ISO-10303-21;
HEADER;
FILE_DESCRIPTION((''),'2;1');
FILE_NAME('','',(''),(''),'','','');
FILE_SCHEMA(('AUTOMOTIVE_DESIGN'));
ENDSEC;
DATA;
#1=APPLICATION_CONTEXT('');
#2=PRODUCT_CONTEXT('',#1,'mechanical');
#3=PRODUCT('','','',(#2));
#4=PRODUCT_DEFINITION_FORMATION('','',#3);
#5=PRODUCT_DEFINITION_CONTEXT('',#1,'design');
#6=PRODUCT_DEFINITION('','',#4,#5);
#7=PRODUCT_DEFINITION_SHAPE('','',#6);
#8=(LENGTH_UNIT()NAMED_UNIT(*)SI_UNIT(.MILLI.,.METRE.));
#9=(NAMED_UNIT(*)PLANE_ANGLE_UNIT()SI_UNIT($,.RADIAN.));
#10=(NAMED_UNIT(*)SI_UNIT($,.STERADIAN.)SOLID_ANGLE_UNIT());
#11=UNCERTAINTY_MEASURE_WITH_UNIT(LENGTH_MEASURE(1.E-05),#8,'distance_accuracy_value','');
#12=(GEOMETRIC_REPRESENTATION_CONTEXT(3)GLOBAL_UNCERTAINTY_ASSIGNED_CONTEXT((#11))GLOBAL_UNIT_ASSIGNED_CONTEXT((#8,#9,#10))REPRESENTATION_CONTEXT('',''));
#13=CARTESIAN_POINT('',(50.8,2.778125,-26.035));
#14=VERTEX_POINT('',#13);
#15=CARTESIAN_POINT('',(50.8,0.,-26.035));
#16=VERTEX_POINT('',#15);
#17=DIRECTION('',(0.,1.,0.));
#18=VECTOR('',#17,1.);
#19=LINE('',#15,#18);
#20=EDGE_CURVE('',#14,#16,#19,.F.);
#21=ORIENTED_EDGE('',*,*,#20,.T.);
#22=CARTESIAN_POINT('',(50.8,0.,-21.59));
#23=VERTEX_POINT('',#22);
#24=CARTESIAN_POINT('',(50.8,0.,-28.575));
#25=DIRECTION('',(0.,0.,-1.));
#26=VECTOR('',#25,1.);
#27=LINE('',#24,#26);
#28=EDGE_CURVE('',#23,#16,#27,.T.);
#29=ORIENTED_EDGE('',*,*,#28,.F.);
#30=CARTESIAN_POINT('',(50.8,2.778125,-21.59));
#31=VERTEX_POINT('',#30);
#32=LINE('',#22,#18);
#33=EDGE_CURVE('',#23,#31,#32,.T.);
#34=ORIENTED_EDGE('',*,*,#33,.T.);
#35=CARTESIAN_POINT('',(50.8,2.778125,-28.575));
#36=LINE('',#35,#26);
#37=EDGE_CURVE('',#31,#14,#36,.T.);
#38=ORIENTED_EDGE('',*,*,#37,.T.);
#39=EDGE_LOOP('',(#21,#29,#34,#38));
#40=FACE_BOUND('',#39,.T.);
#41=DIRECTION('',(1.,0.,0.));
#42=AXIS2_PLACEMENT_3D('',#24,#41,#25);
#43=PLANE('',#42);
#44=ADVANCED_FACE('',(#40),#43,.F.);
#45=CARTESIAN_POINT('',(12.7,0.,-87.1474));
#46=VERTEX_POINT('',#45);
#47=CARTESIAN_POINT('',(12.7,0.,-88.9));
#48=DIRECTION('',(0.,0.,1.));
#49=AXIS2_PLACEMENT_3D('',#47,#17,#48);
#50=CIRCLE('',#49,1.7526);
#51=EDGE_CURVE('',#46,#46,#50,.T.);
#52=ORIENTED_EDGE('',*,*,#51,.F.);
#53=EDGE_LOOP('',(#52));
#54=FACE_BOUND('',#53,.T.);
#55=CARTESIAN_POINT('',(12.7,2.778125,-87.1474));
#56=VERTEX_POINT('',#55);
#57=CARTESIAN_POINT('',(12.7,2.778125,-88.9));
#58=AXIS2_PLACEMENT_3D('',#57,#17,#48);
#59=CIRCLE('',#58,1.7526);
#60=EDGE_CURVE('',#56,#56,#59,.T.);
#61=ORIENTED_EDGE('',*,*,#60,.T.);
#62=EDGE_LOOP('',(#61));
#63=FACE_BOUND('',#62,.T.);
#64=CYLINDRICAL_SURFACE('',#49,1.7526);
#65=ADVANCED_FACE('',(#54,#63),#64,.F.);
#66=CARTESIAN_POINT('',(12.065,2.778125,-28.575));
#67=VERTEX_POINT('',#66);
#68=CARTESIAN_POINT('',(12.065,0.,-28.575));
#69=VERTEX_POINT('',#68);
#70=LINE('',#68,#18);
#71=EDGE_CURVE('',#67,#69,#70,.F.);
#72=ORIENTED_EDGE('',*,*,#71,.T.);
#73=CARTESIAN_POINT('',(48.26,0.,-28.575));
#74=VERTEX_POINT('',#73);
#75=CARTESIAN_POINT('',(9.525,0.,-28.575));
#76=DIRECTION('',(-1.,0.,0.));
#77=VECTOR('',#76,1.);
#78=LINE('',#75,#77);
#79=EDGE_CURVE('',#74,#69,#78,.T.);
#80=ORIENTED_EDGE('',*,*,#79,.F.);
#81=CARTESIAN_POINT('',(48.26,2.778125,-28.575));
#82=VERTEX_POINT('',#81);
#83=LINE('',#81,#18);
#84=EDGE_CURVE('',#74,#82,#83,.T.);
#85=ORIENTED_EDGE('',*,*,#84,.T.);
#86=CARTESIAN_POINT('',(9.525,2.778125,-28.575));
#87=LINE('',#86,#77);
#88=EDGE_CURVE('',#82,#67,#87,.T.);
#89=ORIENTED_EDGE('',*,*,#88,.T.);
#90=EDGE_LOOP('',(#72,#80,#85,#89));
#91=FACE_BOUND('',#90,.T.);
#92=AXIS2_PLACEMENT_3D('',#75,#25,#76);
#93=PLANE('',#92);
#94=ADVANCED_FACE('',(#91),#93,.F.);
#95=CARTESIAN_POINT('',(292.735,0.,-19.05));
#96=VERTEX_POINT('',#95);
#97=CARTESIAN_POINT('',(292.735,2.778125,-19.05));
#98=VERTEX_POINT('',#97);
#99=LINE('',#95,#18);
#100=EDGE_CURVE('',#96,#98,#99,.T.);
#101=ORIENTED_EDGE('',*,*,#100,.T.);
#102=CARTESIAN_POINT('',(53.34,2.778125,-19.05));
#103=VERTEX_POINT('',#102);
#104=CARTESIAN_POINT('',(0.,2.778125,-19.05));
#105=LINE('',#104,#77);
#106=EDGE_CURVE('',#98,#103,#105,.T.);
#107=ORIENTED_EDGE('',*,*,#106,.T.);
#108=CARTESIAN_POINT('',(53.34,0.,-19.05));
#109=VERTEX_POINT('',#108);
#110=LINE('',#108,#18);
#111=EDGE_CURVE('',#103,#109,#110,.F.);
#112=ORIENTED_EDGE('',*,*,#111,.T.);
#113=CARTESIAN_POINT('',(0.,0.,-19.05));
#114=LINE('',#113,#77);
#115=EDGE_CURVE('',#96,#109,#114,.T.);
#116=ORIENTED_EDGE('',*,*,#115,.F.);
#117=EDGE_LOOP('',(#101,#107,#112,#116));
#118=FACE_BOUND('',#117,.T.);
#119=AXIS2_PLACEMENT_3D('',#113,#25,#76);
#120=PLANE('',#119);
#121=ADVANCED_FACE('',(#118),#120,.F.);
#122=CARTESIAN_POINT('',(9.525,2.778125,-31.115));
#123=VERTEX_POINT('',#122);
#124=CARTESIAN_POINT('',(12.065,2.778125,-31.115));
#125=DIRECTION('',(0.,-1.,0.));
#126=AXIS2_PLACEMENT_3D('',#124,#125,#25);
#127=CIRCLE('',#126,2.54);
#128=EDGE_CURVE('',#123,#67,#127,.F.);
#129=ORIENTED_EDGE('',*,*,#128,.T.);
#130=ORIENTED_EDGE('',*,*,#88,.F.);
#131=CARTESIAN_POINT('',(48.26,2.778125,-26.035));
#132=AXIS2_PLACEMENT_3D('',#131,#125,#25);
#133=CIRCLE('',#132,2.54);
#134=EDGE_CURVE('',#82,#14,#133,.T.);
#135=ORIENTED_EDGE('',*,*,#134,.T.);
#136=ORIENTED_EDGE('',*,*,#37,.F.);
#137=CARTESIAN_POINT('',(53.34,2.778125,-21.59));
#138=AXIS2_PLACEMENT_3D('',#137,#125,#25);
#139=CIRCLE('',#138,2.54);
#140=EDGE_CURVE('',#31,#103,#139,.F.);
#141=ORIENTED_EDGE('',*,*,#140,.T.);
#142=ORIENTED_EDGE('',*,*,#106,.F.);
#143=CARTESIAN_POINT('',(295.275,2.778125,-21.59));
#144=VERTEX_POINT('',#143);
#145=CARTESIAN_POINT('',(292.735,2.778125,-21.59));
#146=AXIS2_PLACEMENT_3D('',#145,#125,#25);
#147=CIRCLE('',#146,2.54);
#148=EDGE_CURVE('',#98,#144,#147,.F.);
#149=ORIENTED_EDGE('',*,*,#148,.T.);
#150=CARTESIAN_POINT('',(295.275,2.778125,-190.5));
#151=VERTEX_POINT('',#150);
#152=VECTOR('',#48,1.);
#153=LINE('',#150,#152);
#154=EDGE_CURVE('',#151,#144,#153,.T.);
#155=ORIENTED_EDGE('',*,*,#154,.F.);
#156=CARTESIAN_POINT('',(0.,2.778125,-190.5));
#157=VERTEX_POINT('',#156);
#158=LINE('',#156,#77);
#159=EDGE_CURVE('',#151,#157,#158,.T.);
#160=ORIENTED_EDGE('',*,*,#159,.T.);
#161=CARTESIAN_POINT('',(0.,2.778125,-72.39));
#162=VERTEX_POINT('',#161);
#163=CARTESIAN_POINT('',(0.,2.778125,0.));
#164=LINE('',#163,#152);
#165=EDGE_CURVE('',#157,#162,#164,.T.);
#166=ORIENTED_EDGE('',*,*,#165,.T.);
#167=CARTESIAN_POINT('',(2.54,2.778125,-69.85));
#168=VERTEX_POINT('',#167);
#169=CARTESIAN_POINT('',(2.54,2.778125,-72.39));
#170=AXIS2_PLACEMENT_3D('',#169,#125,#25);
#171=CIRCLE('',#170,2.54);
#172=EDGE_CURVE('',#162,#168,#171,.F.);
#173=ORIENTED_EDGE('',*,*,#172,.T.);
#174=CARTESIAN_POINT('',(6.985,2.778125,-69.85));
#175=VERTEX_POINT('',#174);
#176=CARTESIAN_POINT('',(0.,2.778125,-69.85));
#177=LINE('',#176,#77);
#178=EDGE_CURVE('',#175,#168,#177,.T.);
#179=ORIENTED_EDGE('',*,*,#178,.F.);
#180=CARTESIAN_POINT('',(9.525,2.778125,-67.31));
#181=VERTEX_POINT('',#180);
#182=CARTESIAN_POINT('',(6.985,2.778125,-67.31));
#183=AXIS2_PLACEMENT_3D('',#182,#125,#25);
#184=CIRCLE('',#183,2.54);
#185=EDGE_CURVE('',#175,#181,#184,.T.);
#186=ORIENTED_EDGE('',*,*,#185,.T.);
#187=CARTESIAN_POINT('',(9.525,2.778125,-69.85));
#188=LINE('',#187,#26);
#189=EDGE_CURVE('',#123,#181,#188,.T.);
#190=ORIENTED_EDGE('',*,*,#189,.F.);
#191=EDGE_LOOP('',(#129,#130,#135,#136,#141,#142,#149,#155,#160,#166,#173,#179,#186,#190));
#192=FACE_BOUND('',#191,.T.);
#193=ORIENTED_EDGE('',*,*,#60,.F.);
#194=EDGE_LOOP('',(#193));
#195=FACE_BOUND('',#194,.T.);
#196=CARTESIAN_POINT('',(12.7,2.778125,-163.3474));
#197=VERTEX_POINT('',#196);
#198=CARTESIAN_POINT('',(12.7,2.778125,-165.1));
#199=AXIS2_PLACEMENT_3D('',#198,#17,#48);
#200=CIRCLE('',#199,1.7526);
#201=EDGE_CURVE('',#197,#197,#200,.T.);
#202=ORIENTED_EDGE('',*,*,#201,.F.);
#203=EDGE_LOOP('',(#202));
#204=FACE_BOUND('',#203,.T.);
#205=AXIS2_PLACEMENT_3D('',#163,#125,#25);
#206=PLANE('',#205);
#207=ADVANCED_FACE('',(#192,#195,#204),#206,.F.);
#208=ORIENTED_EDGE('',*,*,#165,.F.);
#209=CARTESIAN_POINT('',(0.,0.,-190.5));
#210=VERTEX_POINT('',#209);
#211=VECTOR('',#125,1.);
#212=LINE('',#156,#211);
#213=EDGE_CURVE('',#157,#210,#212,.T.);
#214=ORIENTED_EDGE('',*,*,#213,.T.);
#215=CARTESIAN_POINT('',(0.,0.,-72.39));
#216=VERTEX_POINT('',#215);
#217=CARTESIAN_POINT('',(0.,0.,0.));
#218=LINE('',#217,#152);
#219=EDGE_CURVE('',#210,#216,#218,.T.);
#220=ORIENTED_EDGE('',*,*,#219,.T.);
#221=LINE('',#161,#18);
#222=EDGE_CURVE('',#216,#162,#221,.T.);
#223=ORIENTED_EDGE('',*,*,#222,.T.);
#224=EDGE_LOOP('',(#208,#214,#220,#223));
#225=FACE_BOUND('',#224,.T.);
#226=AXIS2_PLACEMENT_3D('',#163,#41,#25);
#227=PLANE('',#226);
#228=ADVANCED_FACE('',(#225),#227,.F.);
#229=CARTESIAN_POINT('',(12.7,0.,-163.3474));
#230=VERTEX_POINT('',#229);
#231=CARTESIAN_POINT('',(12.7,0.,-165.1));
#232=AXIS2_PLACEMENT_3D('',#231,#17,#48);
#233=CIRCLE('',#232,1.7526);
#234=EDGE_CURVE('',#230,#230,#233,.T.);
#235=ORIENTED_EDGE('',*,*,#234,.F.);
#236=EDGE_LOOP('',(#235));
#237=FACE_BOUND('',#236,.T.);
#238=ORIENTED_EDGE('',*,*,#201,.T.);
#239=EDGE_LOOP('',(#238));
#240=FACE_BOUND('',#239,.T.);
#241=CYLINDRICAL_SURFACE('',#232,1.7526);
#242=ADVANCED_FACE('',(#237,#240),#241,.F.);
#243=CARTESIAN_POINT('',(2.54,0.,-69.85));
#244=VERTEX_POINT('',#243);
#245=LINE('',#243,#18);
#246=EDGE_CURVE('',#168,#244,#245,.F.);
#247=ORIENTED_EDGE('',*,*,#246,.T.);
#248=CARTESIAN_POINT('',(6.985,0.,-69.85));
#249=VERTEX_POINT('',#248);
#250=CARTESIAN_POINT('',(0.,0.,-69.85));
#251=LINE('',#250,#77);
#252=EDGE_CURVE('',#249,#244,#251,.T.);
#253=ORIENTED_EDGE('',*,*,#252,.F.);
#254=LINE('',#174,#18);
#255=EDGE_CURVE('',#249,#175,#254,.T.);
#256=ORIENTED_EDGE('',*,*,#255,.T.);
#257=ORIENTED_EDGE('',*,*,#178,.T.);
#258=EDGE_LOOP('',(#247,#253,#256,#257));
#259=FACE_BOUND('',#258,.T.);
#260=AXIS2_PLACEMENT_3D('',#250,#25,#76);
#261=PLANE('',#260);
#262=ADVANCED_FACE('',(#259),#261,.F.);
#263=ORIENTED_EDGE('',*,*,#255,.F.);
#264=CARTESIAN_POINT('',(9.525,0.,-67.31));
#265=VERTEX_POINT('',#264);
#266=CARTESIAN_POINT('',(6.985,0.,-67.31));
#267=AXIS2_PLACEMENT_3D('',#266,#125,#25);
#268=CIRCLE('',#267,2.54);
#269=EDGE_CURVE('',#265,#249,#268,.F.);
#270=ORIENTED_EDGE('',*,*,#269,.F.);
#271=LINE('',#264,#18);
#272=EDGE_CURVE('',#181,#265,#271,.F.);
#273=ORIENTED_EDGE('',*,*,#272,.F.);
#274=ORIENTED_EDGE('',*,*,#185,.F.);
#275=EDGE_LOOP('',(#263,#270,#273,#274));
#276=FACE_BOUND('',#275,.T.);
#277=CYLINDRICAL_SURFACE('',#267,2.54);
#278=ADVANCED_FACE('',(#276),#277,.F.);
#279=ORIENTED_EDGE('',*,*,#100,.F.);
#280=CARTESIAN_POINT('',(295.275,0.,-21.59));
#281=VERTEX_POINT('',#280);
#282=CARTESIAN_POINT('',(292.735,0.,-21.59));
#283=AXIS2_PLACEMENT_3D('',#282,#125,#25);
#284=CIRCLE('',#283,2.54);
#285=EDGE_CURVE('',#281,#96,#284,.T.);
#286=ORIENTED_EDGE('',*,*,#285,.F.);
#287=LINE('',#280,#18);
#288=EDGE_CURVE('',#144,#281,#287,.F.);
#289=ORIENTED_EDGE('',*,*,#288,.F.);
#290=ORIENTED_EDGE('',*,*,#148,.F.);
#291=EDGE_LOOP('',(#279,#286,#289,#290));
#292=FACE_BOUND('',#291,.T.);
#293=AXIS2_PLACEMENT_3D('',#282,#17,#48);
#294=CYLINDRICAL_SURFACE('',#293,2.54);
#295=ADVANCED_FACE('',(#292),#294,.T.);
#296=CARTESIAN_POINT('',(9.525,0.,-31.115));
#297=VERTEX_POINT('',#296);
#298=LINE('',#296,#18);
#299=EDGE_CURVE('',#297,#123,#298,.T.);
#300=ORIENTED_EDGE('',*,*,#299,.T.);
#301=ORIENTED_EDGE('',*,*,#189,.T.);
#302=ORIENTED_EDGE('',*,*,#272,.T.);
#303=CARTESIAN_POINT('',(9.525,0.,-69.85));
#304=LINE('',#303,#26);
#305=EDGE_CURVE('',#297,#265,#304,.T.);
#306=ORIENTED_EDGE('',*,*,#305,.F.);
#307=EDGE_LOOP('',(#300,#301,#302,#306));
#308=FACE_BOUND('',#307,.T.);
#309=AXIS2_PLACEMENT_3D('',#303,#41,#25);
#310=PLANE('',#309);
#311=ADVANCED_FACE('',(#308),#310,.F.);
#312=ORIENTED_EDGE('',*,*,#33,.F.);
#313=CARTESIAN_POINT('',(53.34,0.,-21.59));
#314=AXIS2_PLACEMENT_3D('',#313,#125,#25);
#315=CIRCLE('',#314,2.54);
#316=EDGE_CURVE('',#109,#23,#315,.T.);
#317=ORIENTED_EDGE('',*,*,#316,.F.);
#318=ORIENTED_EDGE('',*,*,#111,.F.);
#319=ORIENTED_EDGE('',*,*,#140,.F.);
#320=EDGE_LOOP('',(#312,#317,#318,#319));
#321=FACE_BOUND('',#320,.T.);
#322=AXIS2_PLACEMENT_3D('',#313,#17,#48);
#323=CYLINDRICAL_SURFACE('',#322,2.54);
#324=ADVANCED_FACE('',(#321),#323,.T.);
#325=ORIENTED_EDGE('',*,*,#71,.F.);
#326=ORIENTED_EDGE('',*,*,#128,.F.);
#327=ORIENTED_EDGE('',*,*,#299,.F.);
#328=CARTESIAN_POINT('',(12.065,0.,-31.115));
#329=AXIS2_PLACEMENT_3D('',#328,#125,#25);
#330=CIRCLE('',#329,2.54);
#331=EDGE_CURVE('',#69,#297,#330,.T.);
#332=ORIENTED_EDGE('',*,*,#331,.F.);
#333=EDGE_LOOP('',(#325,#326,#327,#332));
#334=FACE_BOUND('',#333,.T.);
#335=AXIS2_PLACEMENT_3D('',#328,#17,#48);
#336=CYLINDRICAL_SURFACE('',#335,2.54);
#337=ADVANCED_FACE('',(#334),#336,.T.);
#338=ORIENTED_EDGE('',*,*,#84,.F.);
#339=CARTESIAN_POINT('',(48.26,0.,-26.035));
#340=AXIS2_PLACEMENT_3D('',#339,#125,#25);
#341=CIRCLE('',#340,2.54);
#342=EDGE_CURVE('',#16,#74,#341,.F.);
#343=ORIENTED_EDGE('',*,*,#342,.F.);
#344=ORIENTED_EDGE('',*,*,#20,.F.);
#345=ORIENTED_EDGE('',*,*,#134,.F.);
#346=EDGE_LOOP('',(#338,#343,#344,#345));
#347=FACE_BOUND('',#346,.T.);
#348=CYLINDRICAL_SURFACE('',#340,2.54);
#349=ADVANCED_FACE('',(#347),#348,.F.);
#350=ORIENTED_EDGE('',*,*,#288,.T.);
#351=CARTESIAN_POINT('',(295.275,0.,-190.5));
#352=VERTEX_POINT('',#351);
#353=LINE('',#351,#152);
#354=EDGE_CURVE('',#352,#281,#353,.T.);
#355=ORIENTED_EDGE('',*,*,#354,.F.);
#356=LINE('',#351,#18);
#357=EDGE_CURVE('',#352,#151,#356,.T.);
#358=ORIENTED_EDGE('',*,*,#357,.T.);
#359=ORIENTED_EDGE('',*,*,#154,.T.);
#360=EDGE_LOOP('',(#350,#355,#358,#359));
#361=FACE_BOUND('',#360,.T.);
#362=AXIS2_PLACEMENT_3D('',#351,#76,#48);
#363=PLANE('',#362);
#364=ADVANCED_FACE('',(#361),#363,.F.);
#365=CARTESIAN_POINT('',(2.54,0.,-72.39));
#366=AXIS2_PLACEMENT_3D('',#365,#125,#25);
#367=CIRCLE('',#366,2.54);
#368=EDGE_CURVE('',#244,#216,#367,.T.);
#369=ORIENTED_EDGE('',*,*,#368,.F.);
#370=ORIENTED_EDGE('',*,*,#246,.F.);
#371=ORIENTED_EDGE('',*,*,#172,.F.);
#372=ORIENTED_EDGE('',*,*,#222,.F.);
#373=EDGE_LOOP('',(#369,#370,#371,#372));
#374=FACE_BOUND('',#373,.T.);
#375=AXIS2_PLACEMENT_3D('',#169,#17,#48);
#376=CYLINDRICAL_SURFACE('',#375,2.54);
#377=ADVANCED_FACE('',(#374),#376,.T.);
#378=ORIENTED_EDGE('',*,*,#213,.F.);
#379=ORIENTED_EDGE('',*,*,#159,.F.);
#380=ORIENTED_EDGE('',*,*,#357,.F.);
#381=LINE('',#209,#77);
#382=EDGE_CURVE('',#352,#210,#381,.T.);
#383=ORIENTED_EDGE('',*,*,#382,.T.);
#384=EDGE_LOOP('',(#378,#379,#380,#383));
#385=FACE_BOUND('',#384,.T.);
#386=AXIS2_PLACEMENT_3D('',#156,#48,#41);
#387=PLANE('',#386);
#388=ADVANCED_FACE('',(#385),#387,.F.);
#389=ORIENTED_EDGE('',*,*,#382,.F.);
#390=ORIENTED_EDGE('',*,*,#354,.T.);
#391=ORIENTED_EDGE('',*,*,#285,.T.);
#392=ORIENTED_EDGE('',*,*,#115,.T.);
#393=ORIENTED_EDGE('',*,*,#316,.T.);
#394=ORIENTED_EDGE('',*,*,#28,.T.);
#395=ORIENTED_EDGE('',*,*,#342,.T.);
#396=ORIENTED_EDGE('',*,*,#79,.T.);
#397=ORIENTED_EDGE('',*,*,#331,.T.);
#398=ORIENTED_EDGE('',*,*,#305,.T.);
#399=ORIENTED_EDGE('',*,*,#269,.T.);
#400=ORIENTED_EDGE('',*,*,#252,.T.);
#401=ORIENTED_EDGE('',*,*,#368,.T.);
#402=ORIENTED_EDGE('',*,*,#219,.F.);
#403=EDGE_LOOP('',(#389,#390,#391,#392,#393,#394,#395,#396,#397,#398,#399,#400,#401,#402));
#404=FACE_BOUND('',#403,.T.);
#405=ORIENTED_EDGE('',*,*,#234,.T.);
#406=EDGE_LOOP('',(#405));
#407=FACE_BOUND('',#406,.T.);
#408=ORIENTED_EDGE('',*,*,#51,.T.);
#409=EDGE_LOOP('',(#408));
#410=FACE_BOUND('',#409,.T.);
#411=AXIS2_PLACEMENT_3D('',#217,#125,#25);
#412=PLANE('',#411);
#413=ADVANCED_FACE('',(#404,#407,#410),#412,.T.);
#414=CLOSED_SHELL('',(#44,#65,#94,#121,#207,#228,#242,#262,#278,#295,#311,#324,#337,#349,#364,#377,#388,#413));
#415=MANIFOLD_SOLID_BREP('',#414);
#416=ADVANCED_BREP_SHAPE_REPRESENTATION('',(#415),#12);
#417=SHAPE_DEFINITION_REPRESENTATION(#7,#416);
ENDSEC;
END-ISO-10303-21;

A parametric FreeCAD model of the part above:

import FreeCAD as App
import Part
import Sketcher
Q = App.Units.Quantity


def edges_at(feature, points):
    """Names of the edges that pass closest to the given points."""
    edges = feature.Shape.Edges
    near = lambda p: min(range(len(edges)), key=lambda i: edges[i].distToShape(Part.Vertex(*p))[0])
    return sorted({f"Edge{near(p) + 1}" for p in points})


def add_polygon(sketch, points):
    """Adds a closed chain of lines whose ends are joined by coincident constraints."""
    first, n = sketch.GeometryCount, len(points)
    for a, b in zip(points, points[1:] + points[:1]):
        sketch.addGeometry(Part.LineSegment(App.Vector(*a, 0), App.Vector(*b, 0)), False)
    for i in range(n):
        sketch.addConstraint(Sketcher.Constraint("Coincident", first + i, 2, first + (i + 1) % n, 1))

doc = App.newDocument("Part")
body = doc.addObject("PartDesign::Body", "Body")

sketch1 = doc.addObject("Sketcher::SketchObject", "Sketch")
body.addObject(sketch1)
sketch1.AttachmentSupport = (doc.XZ_Plane, [""])
sketch1.MapMode = "FlatFace"
add_polygon(sketch1, [(0, -190), (0, 0), (305, 0), (305, -190)])
sketch1.addConstraint([
    Sketcher.Constraint("Vertical", 0),
    Sketcher.Constraint("Horizontal", 1),
    Sketcher.Constraint("Vertical", 2),
    Sketcher.Constraint("Horizontal", 3),
    Sketcher.Constraint("Coincident", 0, 2, -1, 1),
    Sketcher.Constraint("DistanceX", 1, 1, 1, 2, Q("12 in")),
    Sketcher.Constraint("DistanceY", 0, 1, 0, 2, Q("7.5 in")),
])
pad1 = doc.addObject("PartDesign::Pad", "Pad")
body.addObject(pad1)
pad1.Profile = sketch1
pad1.Length = Q("0.109375 in")
pad1.Reversed = True

sketch2 = doc.addObject("Sketcher::SketchObject", "Sketch001")
body.addObject(sketch2)
sketch2.AttachmentSupport = (doc.XZ_Plane, [""])
sketch2.MapMode = "FlatFace"
sketch2.AttachmentOffset = App.Placement(App.Vector(0, 0, -0.109375 * 25.4), App.Rotation())
add_polygon(sketch2, [(0, -19), (0, 0), (305, 0), (305, -19)])
sketch2.addConstraint([
    Sketcher.Constraint("Vertical", 0),
    Sketcher.Constraint("Horizontal", 1),
    Sketcher.Constraint("Vertical", 2),
    Sketcher.Constraint("Horizontal", 3),
    Sketcher.Constraint("Coincident", 0, 2, -1, 1),
    Sketcher.Constraint("DistanceX", 1, 1, 1, 2, Q("12 in")),
    Sketcher.Constraint("DistanceY", 0, 1, 0, 2, Q("0.75 in")),
])
pocket1 = doc.addObject("PartDesign::Pocket", "Pocket")
body.addObject(pocket1)
pocket1.Profile = sketch2
pocket1.Type = "ThroughAll"
pocket1.Reversed = True

sketch3 = doc.addObject("Sketcher::SketchObject", "Sketch002")
body.addObject(sketch3)
sketch3.AttachmentSupport = (doc.XZ_Plane, [""])
sketch3.MapMode = "FlatFace"
sketch3.AttachmentOffset = App.Placement(App.Vector(0, 0, -0.109375 * 25.4), App.Rotation())
add_polygon(sketch3, [(0, -70), (0, -19), (51, -19), (51, -29), (10, -29), (10, -70)])
sketch3.addConstraint([
    Sketcher.Constraint("Vertical", 0),
    Sketcher.Constraint("Horizontal", 1),
    Sketcher.Constraint("Vertical", 2),
    Sketcher.Constraint("Horizontal", 3),
    Sketcher.Constraint("Vertical", 4),
    Sketcher.Constraint("Horizontal", 5),
    Sketcher.Constraint("PointOnObject", 0, 2, -2),
    Sketcher.Constraint("Equal", 1, 0),
    Sketcher.Constraint("Equal", 5, 2),
    Sketcher.Constraint("DistanceX", 1, 1, 1, 2, Q("2 in")),
    Sketcher.Constraint("DistanceX", 3, 2, 3, 1, Q("1.625 in")),
    Sketcher.Constraint("DistanceY", 0, 2, -1, 1, Q("0.75 in")),
])
pocket2 = doc.addObject("PartDesign::Pocket", "Pocket001")
body.addObject(pocket2)
pocket2.Profile = sketch3
pocket2.Type = "ThroughAll"
pocket2.Reversed = True

sketch4 = doc.addObject("Sketcher::SketchObject", "Sketch003")
body.addObject(sketch4)
sketch4.AttachmentSupport = (doc.XZ_Plane, [""])
sketch4.MapMode = "FlatFace"
sketch4.AttachmentOffset = App.Placement(App.Vector(0, 0, -0.109375 * 25.4), App.Rotation())
sketch4.addGeometry([
    Part.Circle(App.Vector(12.7, -165.1, 0), App.Vector(0, 0, 1), 1.8),
    Part.Circle(App.Vector(12.7, -88.9, 0), App.Vector(0, 0, 1), 1.8),
], False)
sketch4.addConstraint([
    Sketcher.Constraint("Equal", 0, 1),
    Sketcher.Constraint("Vertical", 0, 3, 1, 3),
    Sketcher.Constraint("Diameter", 0, Q("0.138 in")),
    Sketcher.Constraint("DistanceY", 0, 3, 1, 3, Q("3 in")),
    Sketcher.Constraint("DistanceX", -1, 1, 0, 3, Q("0.5 in")),
    Sketcher.Constraint("DistanceY", 0, 3, -1, 1, Q("6.5 in")),
])
pocket3 = doc.addObject("PartDesign::Pocket", "Pocket002")
body.addObject(pocket3)
pocket3.Profile = sketch4
pocket3.Type = "ThroughAll"
pocket3.Reversed = True

sketch5 = doc.addObject("Sketcher::SketchObject", "Sketch004")
body.addObject(sketch5)
sketch5.AttachmentSupport = (doc.XZ_Plane, [""])
sketch5.MapMode = "FlatFace"
sketch5.AttachmentOffset = App.Placement(App.Vector(0, 0, -0.109375 * 25.4), App.Rotation())
add_polygon(sketch5, [(295, -190), (295, -19), (305, -19), (305, -190)])
sketch5.addConstraint([
    Sketcher.Constraint("Vertical", 0),
    Sketcher.Constraint("Horizontal", 1),
    Sketcher.Constraint("Vertical", 2),
    Sketcher.Constraint("Horizontal", 3),
    Sketcher.Constraint("DistanceX", -1, 1, 1, 2, Q("12 in")),
    Sketcher.Constraint("DistanceY", 0, 1, 0, 2, Q("6.75 in")),
    Sketcher.Constraint("DistanceY", 2, 2, -1, 1, Q("7.5 in")),
    Sketcher.Constraint("DistanceX", 1, 1, 1, 2, Q("0.375 in")),
])
pocket4 = doc.addObject("PartDesign::Pocket", "Pocket003")
body.addObject(pocket4)
pocket4.Profile = sketch5
pocket4.Type = "ThroughAll"
pocket4.Reversed = True
doc.recompute()

fillet = doc.addObject("PartDesign::Fillet", "Fillet")
body.addObject(fillet)
fillet.Base = (pocket4, edges_at(pocket4, [
    (50.8, 1.389, -19.05),
    (0, 1.389, -69.85),
    (9.525, 1.389, -69.85),
    (9.525, 1.389, -28.575),
    (50.8, 1.389, -28.575),
    (295.275, 1.389, -19.05),
]))
fillet.Radius = Q("0.1 in")

doc.recompute()
